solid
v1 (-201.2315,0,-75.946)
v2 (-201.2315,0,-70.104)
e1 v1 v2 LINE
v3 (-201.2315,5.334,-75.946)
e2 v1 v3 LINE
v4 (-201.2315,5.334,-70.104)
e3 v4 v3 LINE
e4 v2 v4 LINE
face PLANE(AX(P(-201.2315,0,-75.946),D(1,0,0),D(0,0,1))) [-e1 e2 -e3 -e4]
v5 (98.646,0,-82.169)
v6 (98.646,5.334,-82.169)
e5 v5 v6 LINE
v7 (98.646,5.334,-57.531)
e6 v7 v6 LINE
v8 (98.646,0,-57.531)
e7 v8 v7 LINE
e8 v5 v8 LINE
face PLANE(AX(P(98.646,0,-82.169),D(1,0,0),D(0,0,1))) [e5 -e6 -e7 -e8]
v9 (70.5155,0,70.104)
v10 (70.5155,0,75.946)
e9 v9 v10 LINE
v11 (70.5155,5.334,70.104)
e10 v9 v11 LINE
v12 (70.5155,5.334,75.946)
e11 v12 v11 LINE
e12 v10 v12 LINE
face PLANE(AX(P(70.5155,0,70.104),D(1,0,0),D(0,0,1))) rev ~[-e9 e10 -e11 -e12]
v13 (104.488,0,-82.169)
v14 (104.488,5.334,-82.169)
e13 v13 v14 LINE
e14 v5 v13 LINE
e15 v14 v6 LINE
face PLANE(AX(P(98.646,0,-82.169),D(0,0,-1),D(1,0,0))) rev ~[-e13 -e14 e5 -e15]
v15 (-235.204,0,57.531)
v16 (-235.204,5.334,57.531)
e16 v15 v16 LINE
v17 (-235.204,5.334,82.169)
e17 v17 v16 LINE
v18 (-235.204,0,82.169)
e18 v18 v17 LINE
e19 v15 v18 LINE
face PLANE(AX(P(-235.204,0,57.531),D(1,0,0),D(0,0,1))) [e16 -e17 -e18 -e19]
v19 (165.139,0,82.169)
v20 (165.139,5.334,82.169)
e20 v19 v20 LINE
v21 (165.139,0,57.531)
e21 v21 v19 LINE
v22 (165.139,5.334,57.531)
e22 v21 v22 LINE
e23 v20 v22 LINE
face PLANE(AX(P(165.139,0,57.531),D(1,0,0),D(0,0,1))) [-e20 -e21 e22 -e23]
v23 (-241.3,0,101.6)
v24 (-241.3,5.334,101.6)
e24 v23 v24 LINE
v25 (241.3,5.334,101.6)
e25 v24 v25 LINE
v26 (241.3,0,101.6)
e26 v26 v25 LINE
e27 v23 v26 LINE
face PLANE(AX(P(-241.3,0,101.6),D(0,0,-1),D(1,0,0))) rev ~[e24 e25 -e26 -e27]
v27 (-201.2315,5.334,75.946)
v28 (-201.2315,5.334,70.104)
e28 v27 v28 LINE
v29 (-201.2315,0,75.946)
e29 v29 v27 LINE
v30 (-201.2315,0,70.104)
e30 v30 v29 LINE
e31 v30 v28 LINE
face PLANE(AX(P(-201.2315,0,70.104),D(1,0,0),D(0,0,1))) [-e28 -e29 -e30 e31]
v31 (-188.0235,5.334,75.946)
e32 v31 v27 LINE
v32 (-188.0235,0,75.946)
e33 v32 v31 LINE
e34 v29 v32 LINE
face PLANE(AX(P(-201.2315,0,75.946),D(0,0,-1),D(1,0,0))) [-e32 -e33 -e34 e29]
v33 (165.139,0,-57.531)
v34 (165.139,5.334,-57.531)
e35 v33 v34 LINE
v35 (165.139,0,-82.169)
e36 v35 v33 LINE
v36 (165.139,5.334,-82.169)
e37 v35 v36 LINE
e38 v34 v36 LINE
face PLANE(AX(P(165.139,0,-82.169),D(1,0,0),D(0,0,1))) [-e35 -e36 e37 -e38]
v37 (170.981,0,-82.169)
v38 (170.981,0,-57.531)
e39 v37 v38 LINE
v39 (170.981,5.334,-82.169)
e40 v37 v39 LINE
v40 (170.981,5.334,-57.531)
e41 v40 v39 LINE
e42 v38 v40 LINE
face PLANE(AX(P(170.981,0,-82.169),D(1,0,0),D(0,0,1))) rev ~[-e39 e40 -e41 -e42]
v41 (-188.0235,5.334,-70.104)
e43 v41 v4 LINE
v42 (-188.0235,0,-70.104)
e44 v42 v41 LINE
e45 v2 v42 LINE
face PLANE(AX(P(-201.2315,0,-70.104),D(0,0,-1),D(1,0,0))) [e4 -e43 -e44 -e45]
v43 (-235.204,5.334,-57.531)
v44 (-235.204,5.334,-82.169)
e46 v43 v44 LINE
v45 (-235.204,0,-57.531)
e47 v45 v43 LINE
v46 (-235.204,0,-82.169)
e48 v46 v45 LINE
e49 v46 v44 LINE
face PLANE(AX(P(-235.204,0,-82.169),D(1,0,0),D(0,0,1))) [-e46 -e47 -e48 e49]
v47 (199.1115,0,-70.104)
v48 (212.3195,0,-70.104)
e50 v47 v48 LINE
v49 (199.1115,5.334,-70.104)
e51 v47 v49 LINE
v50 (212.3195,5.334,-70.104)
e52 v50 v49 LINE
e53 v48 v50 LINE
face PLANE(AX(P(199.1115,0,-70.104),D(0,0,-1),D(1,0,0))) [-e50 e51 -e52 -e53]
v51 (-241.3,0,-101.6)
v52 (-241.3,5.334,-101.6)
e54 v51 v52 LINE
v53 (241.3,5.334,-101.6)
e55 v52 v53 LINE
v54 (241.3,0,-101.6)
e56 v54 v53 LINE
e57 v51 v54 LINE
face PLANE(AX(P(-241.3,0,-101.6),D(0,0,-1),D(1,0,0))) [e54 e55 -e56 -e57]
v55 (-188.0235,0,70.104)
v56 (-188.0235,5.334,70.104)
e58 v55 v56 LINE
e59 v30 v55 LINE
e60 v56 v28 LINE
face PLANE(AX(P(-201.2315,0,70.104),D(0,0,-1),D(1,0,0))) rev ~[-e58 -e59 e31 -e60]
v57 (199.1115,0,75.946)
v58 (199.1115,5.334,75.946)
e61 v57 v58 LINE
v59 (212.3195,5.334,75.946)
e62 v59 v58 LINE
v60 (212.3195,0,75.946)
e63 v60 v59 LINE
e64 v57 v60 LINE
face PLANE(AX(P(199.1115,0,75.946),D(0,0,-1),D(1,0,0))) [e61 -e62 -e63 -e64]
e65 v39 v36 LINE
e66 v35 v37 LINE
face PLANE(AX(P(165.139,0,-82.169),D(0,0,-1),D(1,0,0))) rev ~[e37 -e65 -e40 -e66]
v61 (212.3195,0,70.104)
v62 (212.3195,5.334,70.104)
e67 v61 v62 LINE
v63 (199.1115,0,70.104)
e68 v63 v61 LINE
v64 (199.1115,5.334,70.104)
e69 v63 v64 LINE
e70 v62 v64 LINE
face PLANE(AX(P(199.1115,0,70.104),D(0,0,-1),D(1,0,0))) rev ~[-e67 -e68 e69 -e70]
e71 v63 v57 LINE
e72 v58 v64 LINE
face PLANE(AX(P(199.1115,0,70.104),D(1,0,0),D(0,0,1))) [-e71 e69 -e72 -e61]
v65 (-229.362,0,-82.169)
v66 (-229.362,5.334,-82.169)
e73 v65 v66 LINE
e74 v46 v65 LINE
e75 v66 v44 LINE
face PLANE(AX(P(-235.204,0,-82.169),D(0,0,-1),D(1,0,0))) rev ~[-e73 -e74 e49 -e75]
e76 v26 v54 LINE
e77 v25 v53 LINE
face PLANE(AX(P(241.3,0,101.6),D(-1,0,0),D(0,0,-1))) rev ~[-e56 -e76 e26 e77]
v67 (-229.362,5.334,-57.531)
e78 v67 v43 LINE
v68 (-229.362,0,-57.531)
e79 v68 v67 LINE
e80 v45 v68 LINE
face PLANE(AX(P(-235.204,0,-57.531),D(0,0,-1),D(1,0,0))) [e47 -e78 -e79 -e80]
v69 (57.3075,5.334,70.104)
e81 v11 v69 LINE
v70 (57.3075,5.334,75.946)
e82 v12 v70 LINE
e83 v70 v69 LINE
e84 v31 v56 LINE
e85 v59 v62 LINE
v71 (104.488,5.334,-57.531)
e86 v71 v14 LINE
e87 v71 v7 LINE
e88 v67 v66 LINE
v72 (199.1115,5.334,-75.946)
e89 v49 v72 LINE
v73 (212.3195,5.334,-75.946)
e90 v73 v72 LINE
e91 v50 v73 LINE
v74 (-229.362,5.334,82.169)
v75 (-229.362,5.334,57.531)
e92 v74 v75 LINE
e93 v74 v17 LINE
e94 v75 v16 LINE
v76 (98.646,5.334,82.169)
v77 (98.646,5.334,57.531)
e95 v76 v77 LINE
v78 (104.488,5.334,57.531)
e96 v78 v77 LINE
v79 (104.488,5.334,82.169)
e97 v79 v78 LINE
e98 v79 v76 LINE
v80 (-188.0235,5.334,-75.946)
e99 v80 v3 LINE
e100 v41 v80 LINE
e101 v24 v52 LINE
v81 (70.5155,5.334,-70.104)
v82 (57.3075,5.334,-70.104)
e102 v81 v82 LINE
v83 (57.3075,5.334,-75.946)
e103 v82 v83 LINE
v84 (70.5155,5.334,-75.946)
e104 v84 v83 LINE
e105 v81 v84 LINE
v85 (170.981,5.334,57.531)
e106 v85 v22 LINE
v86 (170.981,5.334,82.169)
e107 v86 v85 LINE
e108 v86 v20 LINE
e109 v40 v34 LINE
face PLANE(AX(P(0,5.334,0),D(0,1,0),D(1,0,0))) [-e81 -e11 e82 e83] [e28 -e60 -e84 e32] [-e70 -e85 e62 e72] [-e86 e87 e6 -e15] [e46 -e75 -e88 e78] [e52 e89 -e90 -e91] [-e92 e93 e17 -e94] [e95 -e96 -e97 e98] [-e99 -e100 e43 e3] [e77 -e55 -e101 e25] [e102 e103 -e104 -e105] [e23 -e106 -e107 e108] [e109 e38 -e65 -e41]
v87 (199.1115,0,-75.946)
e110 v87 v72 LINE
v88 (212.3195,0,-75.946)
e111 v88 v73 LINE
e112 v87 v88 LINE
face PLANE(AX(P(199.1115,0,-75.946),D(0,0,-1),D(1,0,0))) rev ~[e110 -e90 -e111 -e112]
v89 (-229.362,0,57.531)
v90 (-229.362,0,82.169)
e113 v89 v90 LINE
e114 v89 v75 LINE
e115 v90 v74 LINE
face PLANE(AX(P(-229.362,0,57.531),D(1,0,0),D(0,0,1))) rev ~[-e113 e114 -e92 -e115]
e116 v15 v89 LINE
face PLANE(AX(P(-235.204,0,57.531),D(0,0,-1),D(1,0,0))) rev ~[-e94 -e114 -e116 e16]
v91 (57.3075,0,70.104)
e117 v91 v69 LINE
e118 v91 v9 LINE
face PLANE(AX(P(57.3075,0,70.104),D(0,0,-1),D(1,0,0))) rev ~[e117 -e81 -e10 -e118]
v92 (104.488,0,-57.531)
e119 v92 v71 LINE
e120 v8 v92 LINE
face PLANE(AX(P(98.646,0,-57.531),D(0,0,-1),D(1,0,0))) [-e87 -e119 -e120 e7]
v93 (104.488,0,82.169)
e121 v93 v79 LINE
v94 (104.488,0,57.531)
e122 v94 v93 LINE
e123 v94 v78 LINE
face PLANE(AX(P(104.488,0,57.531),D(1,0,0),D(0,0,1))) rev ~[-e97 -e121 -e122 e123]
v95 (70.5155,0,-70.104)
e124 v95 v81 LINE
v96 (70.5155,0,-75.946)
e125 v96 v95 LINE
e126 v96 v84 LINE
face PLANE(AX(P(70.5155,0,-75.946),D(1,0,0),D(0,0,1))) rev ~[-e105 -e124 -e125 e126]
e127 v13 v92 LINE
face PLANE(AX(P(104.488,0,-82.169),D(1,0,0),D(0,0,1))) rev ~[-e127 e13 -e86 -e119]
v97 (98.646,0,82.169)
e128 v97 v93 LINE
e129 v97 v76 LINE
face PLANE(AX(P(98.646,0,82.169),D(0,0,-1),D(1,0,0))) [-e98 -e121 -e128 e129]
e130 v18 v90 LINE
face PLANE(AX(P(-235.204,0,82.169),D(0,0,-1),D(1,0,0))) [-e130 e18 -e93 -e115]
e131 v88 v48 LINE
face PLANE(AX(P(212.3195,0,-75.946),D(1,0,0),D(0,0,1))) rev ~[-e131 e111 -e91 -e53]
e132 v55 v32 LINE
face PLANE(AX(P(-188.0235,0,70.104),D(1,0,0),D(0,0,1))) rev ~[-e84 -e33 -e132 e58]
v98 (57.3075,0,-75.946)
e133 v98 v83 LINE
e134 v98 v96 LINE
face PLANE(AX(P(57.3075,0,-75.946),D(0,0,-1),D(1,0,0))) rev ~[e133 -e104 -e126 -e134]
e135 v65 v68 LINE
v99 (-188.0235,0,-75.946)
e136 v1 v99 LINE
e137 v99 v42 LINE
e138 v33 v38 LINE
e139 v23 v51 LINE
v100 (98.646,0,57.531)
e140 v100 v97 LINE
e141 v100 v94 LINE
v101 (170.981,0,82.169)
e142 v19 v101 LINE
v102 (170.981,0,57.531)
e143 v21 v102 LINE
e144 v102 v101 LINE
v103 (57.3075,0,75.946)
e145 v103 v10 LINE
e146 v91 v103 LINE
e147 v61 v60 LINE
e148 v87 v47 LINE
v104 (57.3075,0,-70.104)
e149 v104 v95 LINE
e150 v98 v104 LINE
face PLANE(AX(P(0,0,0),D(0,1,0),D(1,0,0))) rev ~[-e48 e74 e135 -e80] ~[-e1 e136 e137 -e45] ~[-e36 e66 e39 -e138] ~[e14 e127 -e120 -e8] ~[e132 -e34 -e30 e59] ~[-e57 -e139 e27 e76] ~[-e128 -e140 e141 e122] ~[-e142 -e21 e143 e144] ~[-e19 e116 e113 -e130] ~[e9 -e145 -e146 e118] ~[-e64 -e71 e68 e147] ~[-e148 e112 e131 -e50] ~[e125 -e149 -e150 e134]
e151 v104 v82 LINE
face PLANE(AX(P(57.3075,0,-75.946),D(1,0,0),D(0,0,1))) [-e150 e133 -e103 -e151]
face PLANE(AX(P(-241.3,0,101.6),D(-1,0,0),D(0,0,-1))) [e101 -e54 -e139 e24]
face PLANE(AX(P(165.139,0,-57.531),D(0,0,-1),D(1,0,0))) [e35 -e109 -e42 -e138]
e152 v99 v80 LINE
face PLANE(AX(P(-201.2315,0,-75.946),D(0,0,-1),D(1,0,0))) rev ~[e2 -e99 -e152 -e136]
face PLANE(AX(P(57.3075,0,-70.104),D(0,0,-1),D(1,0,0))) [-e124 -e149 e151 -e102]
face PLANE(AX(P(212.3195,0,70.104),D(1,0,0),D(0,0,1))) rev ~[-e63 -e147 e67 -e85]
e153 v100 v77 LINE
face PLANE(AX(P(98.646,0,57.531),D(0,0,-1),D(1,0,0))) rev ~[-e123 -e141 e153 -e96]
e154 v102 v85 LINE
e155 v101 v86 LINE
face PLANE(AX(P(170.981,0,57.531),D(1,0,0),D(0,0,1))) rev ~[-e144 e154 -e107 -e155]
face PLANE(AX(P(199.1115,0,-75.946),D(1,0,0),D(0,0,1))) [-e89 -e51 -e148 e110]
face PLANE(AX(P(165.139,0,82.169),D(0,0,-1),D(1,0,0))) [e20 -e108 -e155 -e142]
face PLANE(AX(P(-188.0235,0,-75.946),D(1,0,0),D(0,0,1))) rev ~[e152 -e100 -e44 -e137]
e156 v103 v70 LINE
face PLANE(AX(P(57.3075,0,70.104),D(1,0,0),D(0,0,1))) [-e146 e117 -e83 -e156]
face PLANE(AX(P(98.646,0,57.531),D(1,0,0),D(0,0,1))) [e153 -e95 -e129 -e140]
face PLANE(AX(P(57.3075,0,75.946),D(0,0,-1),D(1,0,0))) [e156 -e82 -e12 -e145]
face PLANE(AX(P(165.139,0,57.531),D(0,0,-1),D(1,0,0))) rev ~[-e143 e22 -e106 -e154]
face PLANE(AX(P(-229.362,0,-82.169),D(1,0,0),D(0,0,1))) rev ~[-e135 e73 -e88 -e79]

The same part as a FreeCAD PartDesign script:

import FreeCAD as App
import Part
import Sketcher

V = App.Vector
Q = App.Units.Quantity

doc = App.newDocument("Part")
params = doc.addObject("Spreadsheet::Sheet", "Params")
for row, (alias, value) in enumerate([
    ("sketch1_width", "19 in"),
    ("sketch1_height", "8 in"),
    ("pad1_length", "0.21 in"),
    ("sketch2_width", "0.23 in"),
    ("sketch2_width2", "0.52 in"),
    ("sketch2_height", "0.97 in"),
], start=1):
    params.set(f"A{row}", alias)
    params.set(f"B{row}", "=" + value)
    params.setAlias(f"B{row}", alias)

body = doc.addObject("PartDesign::Body", "Body")

# Sketch on XZ plane
sketch1 = body.newObject("Sketcher::SketchObject", "Sketch")
sketch1.AttachmentSupport = (doc.getObject("XZ_Plane"), [""])
sketch1.MapMode = "FlatFace"
sketch1.addGeometry([
    Part.LineSegment(V(-241, -102, 0), V(-241, 102, 0)),
    Part.LineSegment(V(-241, 102, 0), V(241, 102, 0)),
    Part.LineSegment(V(241, 102, 0), V(241, -102, 0)),
    Part.LineSegment(V(241, -102, 0), V(-241, -102, 0)),
], False)
sketch1.addConstraint([
    Sketcher.Constraint("Coincident", 0, 2, 1, 1),
    Sketcher.Constraint("Coincident", 1, 2, 2, 1),
    Sketcher.Constraint("Coincident", 2, 2, 3, 1),
    Sketcher.Constraint("Coincident", 3, 2, 0, 1),
    Sketcher.Constraint("Vertical", 0),
    Sketcher.Constraint("Horizontal", 1),
    Sketcher.Constraint("Vertical", 2),
    Sketcher.Constraint("Horizontal", 3),
    Sketcher.Constraint("Symmetric", 0, 2, 2, 2, -1, 1),
    Sketcher.Constraint("DistanceX", 1, 1, 1, 2, Q("19 in")),
    Sketcher.Constraint("DistanceY", 0, 1, 0, 2, Q("8 in")),
])
sketch1.setExpression("Constraints[9]", "Params.sketch1_width")
sketch1.setExpression("Constraints[10]", "Params.sketch1_height")
pad1 = body.newObject("PartDesign::Pad", "Pad")
pad1.Profile = sketch1
pad1.setExpression("Length", "Params.pad1_length")
pad1.Reversed = True

# Sketch on XZ plane
sketch2 = body.newObject("Sketcher::SketchObject", "Sketch001")
sketch2.AttachmentSupport = (doc.getObject("XZ_Plane"), [""])
sketch2.MapMode = "FlatFace"
sketch2.addGeometry([
    Part.LineSegment(V(-235, 82, 0), V(-235, 58, 0)),  # 0
    Part.LineSegment(V(-235, 58, 0), V(-229, 58, 0)),  # 1
    Part.LineSegment(V(-229, 58, 0), V(-229, 82, 0)),  # 2
    Part.LineSegment(V(-229, 82, 0), V(-235, 82, 0)),  # 3
    Part.LineSegment(V(99, 82, 0), V(99, 58, 0)),  # 4
    Part.LineSegment(V(99, 58, 0), V(104, 58, 0)),  # 5
    Part.LineSegment(V(104, 58, 0), V(104, 82, 0)),  # 6
    Part.LineSegment(V(104, 82, 0), V(99, 82, 0)),  # 7
    Part.LineSegment(V(165, 82, 0), V(165, 58, 0)),  # 8
    Part.LineSegment(V(165, 58, 0), V(171, 58, 0)),  # 9
    Part.LineSegment(V(171, 58, 0), V(171, 82, 0)),  # 10
    Part.LineSegment(V(171, 82, 0), V(165, 82, 0)),  # 11
    Part.LineSegment(V(165, -58, 0), V(165, -82, 0)),  # 12
    Part.LineSegment(V(165, -82, 0), V(171, -82, 0)),  # 13
    Part.LineSegment(V(171, -82, 0), V(171, -58, 0)),  # 14
    Part.LineSegment(V(171, -58, 0), V(165, -58, 0)),  # 15
    Part.LineSegment(V(99, -58, 0), V(99, -82, 0)),  # 16
    Part.LineSegment(V(99, -82, 0), V(104, -82, 0)),  # 17
    Part.LineSegment(V(104, -82, 0), V(104, -58, 0)),  # 18
    Part.LineSegment(V(104, -58, 0), V(99, -58, 0)),  # 19
    Part.LineSegment(V(-235, -58, 0), V(-235, -82, 0)),  # 20
    Part.LineSegment(V(-235, -82, 0), V(-229, -82, 0)),  # 21
    Part.LineSegment(V(-229, -82, 0), V(-229, -58, 0)),  # 22
    Part.LineSegment(V(-229, -58, 0), V(-235, -58, 0)),  # 23
    Part.LineSegment(V(57, -70, 0), V(57, -76, 0)),  # 24
    Part.LineSegment(V(57, -76, 0), V(71, -76, 0)),  # 25
    Part.LineSegment(V(71, -76, 0), V(71, -70, 0)),  # 26
    Part.LineSegment(V(71, -70, 0), V(57, -70, 0)),  # 27
    Part.LineSegment(V(-201, -70, 0), V(-201, -76, 0)),  # 28
    Part.LineSegment(V(-201, -76, 0), V(-188, -76, 0)),  # 29
    Part.LineSegment(V(-188, -76, 0), V(-188, -70, 0)),  # 30
    Part.LineSegment(V(-188, -70, 0), V(-201, -70, 0)),  # 31
    Part.LineSegment(V(57, 76, 0), V(57, 70, 0)),  # 32
    Part.LineSegment(V(57, 70, 0), V(71, 70, 0)),  # 33
    Part.LineSegment(V(71, 70, 0), V(71, 76, 0)),  # 34
    Part.LineSegment(V(71, 76, 0), V(57, 76, 0)),  # 35
    Part.LineSegment(V(199, -70, 0), V(199, -76, 0)),  # 36
    Part.LineSegment(V(199, -76, 0), V(212, -76, 0)),  # 37
    Part.LineSegment(V(212, -76, 0), V(212, -70, 0)),  # 38
    Part.LineSegment(V(212, -70, 0), V(199, -70, 0)),  # 39
    Part.LineSegment(V(199, 76, 0), V(199, 70, 0)),  # 40
    Part.LineSegment(V(199, 70, 0), V(212, 70, 0)),  # 41
    Part.LineSegment(V(212, 70, 0), V(212, 76, 0)),  # 42
    Part.LineSegment(V(212, 76, 0), V(199, 76, 0)),  # 43
    Part.LineSegment(V(-201, 76, 0), V(-201, 70, 0)),  # 44
    Part.LineSegment(V(-201, 70, 0), V(-188, 70, 0)),  # 45
    Part.LineSegment(V(-188, 70, 0), V(-188, 76, 0)),  # 46
    Part.LineSegment(V(-188, 76, 0), V(-201, 76, 0)),  # 47
], False)
sketch2.addConstraint([
    Sketcher.Constraint("Coincident", 0, 2, 1, 1),
    Sketcher.Constraint("Coincident", 1, 2, 2, 1),
    Sketcher.Constraint("Coincident", 2, 2, 3, 1),
    Sketcher.Constraint("Coincident", 3, 2, 0, 1),
    Sketcher.Constraint("Coincident", 4, 2, 5, 1),
    Sketcher.Constraint("Coincident", 5, 2, 6, 1),
    Sketcher.Constraint("Coincident", 6, 2, 7, 1),
    Sketcher.Constraint("Coincident", 7, 2, 4, 1),
    Sketcher.Constraint("Coincident", 8, 2, 9, 1),
    Sketcher.Constraint("Coincident", 9, 2, 10, 1),
    Sketcher.Constraint("Coincident", 10, 2, 11, 1),
    Sketcher.Constraint("Coincident", 11, 2, 8, 1),
    Sketcher.Constraint("Coincident", 12, 2, 13, 1),
    Sketcher.Constraint("Coincident", 13, 2, 14, 1),
    Sketcher.Constraint("Coincident", 14, 2, 15, 1),
    Sketcher.Constraint("Coincident", 15, 2, 12, 1),
    Sketcher.Constraint("Coincident", 16, 2, 17, 1),
    Sketcher.Constraint("Coincident", 17, 2, 18, 1),
    Sketcher.Constraint("Coincident", 18, 2, 19, 1),
    Sketcher.Constraint("Coincident", 19, 2, 16, 1),
    Sketcher.Constraint("Coincident", 20, 2, 21, 1),
    Sketcher.Constraint("Coincident", 21, 2, 22, 1),
    Sketcher.Constraint("Coincident", 22, 2, 23, 1),
    Sketcher.Constraint("Coincident", 23, 2, 20, 1),
    Sketcher.Constraint("Coincident", 24, 2, 25, 1),
    Sketcher.Constraint("Coincident", 25, 2, 26, 1),
    Sketcher.Constraint("Coincident", 26, 2, 27, 1),
    Sketcher.Constraint("Coincident", 27, 2, 24, 1),
    Sketcher.Constraint("Coincident", 28, 2, 29, 1),
    Sketcher.Constraint("Coincident", 29, 2, 30, 1),
    Sketcher.Constraint("Coincident", 30, 2, 31, 1),
    Sketcher.Constraint("Coincident", 31, 2, 28, 1),
    Sketcher.Constraint("Coincident", 32, 2, 33, 1),
    Sketcher.Constraint("Coincident", 33, 2, 34, 1),
    Sketcher.Constraint("Coincident", 34, 2, 35, 1),
    Sketcher.Constraint("Coincident", 35, 2, 32, 1),
    Sketcher.Constraint("Coincident", 36, 2, 37, 1),
    Sketcher.Constraint("Coincident", 37, 2, 38, 1),
    Sketcher.Constraint("Coincident", 38, 2, 39, 1),
    Sketcher.Constraint("Coincident", 39, 2, 36, 1),
    Sketcher.Constraint("Coincident", 40, 2, 41, 1),
    Sketcher.Constraint("Coincident", 41, 2, 42, 1),
    Sketcher.Constraint("Coincident", 42, 2, 43, 1),
    Sketcher.Constraint("Coincident", 43, 2, 40, 1),
    Sketcher.Constraint("Coincident", 44, 2, 45, 1),
    Sketcher.Constraint("Coincident", 45, 2, 46, 1),
    Sketcher.Constraint("Coincident", 46, 2, 47, 1),
    Sketcher.Constraint("Coincident", 47, 2, 44, 1),
    Sketcher.Constraint("Vertical", 0),
    Sketcher.Constraint("Horizontal", 1),
    Sketcher.Constraint("Vertical", 2),
    Sketcher.Constraint("Horizontal", 3),
    Sketcher.Constraint("Vertical", 4),
    Sketcher.Constraint("Horizontal", 5),
    Sketcher.Constraint("Vertical", 6),
    Sketcher.Constraint("Horizontal", 7),
    Sketcher.Constraint("Vertical", 8),
    Sketcher.Constraint("Horizontal", 9),
    Sketcher.Constraint("Vertical", 10),
    Sketcher.Constraint("Horizontal", 11),
    Sketcher.Constraint("Vertical", 12),
    Sketcher.Constraint("Horizontal", 13),
    Sketcher.Constraint("Vertical", 14),
    Sketcher.Constraint("Horizontal", 15),
    Sketcher.Constraint("Vertical", 16),
    Sketcher.Constraint("Horizontal", 17),
    Sketcher.Constraint("Vertical", 18),
    Sketcher.Constraint("Horizontal", 19),
    Sketcher.Constraint("Vertical", 20),
    Sketcher.Constraint("Horizontal", 21),
    Sketcher.Constraint("Vertical", 22),
    Sketcher.Constraint("Horizontal", 23),
    Sketcher.Constraint("Vertical", 24),
    Sketcher.Constraint("Horizontal", 25),
    Sketcher.Constraint("Vertical", 26),
    Sketcher.Constraint("Horizontal", 27),
    Sketcher.Constraint("Vertical", 28),
    Sketcher.Constraint("Horizontal", 29),
    Sketcher.Constraint("Vertical", 30),
    Sketcher.Constraint("Horizontal", 31),
    Sketcher.Constraint("Vertical", 32),
    Sketcher.Constraint("Horizontal", 33),
    Sketcher.Constraint("Vertical", 34),
    Sketcher.Constraint("Horizontal", 35),
    Sketcher.Constraint("Vertical", 36),
    Sketcher.Constraint("Horizontal", 37),
    Sketcher.Constraint("Vertical", 38),
    Sketcher.Constraint("Horizontal", 39),
    Sketcher.Constraint("Vertical", 40),
    Sketcher.Constraint("Horizontal", 41),
    Sketcher.Constraint("Vertical", 42),
    Sketcher.Constraint("Horizontal", 43),
    Sketcher.Constraint("Vertical", 44),
    Sketcher.Constraint("Horizontal", 45),
    Sketcher.Constraint("Vertical", 46),
    Sketcher.Constraint("Horizontal", 47),
    Sketcher.Constraint("Symmetric", 11, 2, 12, 2, -1),
    Sketcher.Constraint("Symmetric", 9, 2, 14, 2, -1),
    Sketcher.Constraint("Symmetric", 7, 2, 16, 2, -1),
    Sketcher.Constraint("Symmetric", 5, 2, 18, 2, -1),
    Sketcher.Constraint("Symmetric", 3, 2, 20, 2, -1),
    Sketcher.Constraint("Symmetric", 1, 2, 22, 2, -1),
    Sketcher.Constraint("Symmetric", 27, 2, 32, 2, -1),
    Sketcher.Constraint("Symmetric", 25, 2, 34, 2, -1),
    Sketcher.Constraint("Symmetric", 39, 2, 40, 2, -1),
    Sketcher.Constraint("Symmetric", 37, 2, 42, 2, -1),
    Sketcher.Constraint("Symmetric", 31, 2, 44, 2, -1),
    Sketcher.Constraint("Symmetric", 29, 2, 46, 2, -1),
    Sketcher.Constraint("Horizontal", 1, 2, 4, 2),
    Sketcher.Constraint("Horizontal", 3, 2, 6, 2),
    Sketcher.Constraint("Horizontal", 5, 2, 8, 2),
    Sketcher.Constraint("Horizontal", 7, 2, 10, 2),
    Sketcher.Constraint("Horizontal", 25, 2, 28, 2),
    Sketcher.Constraint("Horizontal", 27, 2, 30, 2),
    Sketcher.Constraint("Horizontal", 29, 2, 36, 2),
    Sketcher.Constraint("Horizontal", 31, 2, 38, 2),
    Sketcher.Constraint("Equal", 3, 5),
    Sketcher.Constraint("Equal", 7, 9),
    Sketcher.Constraint("Equal", 27, 29),
    Sketcher.Constraint("Equal", 35, 37),
    Sketcher.Constraint("Equal", 23, 24),
    Sketcher.Constraint("DistanceX", 1, 1, 1, 2, Q("0.23 in")),
    Sketcher.Constraint("DistanceX", 25, 1, 25, 2, Q("0.52 in")),
    Sketcher.Constraint("DistanceY", 0, 2, 0, 1, Q("0.97 in")),
    Sketcher.Constraint("DistanceY", 12, 2, 8, 2, Q("5.5 in")),
    Sketcher.Constraint("DistanceX", 0, 2, -1, 1, Q("9.26 in")),
    Sketcher.Constraint("DistanceY", 24, 2, -1, 1, Q("2.99 in")),
    Sketcher.Constraint("DistanceX", 28, 2, -1, 1, Q("7.9225 in")),
    Sketcher.Constraint("DistanceX", 24, 2, 16, 2, Q("1.6275 in")),
    Sketcher.Constraint("DistanceX", 13, 2, 36, 2, Q("1.1075 in")),
    Sketcher.Constraint("DistanceX", -1, 1, 4, 2, Q("98.646 mm")),
    Sketcher.Constraint("DistanceX", -1, 1, 8, 2, Q("165.139 mm")),
])
sketch2.setExpression("Constraints[121]", "Params.sketch2_width")
sketch2.setExpression("Constraints[122]", "Params.sketch2_width2")
sketch2.setExpression("Constraints[123]", "Params.sketch2_height")
pocket1 = body.newObject("PartDesign::Pocket", "Pocket")
pocket1.Profile = sketch2
pocket1.Type = "ThroughAll"

doc.recompute()
